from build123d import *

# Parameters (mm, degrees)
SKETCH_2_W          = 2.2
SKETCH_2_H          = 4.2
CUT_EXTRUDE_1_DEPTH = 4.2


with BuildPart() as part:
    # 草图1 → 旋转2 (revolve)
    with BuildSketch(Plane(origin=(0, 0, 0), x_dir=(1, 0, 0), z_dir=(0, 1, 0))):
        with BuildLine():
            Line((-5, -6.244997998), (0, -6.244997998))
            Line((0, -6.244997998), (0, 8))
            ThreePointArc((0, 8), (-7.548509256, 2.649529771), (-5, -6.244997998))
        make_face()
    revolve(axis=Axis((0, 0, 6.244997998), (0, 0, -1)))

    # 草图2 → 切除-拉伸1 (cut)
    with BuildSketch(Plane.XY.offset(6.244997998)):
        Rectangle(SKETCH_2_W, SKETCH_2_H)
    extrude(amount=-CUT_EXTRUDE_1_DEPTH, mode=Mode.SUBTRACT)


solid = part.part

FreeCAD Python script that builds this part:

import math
import FreeCAD as App
import Part
import Sketcher
Q = App.Units.Quantity

doc = App.newDocument("Part")
body = doc.addObject("PartDesign::Body", "Body")

# Sketch on XZ plane
sketch1 = body.newObject("Sketcher::SketchObject", "Sketch")
sketch1.AttachmentSupport = (doc.getObject("XZ_Plane"), [""])
sketch1.MapMode = "FlatFace"
sketch1.addGeometry(Part.LineSegment(App.Vector(-5, 6.244998, 0), App.Vector(0, 6.244998, 0)), False)
sketch1.addGeometry(Part.LineSegment(App.Vector(0, 6.244998, 0), App.Vector(0, -8, 0)), False)
sketch1.addGeometry(Part.ArcOfCircle(Part.Circle(App.Vector(0, 0, 0), App.Vector(0, 0, 1), 8), math.radians(128.682187), math.radians(270)), False)
sketch1.addConstraint(Sketcher.Constraint("Coincident", 0, 2, 1, 1))
sketch1.addConstraint(Sketcher.Constraint("Coincident", 1, 2, 2, 2))
sketch1.addConstraint(Sketcher.Constraint("Coincident", 2, 1, 0, 1))
sketch1.addConstraint(Sketcher.Constraint("Horizontal", 0))
sketch1.addConstraint(Sketcher.Constraint("Vertical", 1))
sketch1.addConstraint(Sketcher.Constraint("Coincident", 2, 3, -1, 1))
sketch1.addConstraint(Sketcher.Constraint("PointOnObject", 0, 2, -2))
sketch1.addConstraint(Sketcher.Constraint("Radius", 2, Q("8 mm")))
sketch1.addConstraint(Sketcher.Constraint("DistanceX", 0, 1, 0, 2, Q("5 mm")))
revolution = body.newObject("PartDesign::Revolution", "Revolution")
revolution.Profile = sketch1
revolution.ReferenceAxis = (sketch1, ["V_Axis"])
revolution.Angle = 360

# Sketch on XY plane
sketch2 = body.newObject("Sketcher::SketchObject", "Sketch001")
sketch2.AttachmentSupport = (doc.getObject("XY_Plane"), [""])
sketch2.MapMode = "FlatFace"
sketch2.AttachmentOffset = App.Placement(App.Vector(0, 0, 6.244998), App.Rotation())
sketch2.addGeometry(Part.LineSegment(App.Vector(-1.1, 2.1, 0), App.Vector(-1.1, -2.1, 0)), False)
sketch2.addGeometry(Part.LineSegment(App.Vector(-1.1, -2.1, 0), App.Vector(1.1, -2.1, 0)), False)
sketch2.addGeometry(Part.LineSegment(App.Vector(1.1, -2.1, 0), App.Vector(1.1, 2.1, 0)), False)
sketch2.addGeometry(Part.LineSegment(App.Vector(1.1, 2.1, 0), App.Vector(-1.1, 2.1, 0)), False)
sketch2.addConstraint(Sketcher.Constraint("Coincident", 0, 2, 1, 1))
sketch2.addConstraint(Sketcher.Constraint("Coincident", 1, 2, 2, 1))
sketch2.addConstraint(Sketcher.Constraint("Coincident", 2, 2, 3, 1))
sketch2.addConstraint(Sketcher.Constraint("Coincident", 3, 2, 0, 1))
sketch2.addConstraint(Sketcher.Constraint("Vertical", 0))
sketch2.addConstraint(Sketcher.Constraint("Horizontal", 1))
sketch2.addConstraint(Sketcher.Constraint("Vertical", 2))
sketch2.addConstraint(Sketcher.Constraint("Horizontal", 3))
sketch2.addConstraint(Sketcher.Constraint("Symmetric", 0, 2, 2, 2, -1, 1))
sketch2.addConstraint(Sketcher.Constraint("DistanceX", 1, 1, 1, 2, Q("2.2 mm")))
sketch2.addConstraint(Sketcher.Constraint("DistanceY", 0, 2, 0, 1, Q("4.2 mm")))
pocket1 = body.newObject("PartDesign::Pocket", "Pocket")
pocket1.Profile = sketch2
pocket1.Length = 4.2

doc.recompute()
